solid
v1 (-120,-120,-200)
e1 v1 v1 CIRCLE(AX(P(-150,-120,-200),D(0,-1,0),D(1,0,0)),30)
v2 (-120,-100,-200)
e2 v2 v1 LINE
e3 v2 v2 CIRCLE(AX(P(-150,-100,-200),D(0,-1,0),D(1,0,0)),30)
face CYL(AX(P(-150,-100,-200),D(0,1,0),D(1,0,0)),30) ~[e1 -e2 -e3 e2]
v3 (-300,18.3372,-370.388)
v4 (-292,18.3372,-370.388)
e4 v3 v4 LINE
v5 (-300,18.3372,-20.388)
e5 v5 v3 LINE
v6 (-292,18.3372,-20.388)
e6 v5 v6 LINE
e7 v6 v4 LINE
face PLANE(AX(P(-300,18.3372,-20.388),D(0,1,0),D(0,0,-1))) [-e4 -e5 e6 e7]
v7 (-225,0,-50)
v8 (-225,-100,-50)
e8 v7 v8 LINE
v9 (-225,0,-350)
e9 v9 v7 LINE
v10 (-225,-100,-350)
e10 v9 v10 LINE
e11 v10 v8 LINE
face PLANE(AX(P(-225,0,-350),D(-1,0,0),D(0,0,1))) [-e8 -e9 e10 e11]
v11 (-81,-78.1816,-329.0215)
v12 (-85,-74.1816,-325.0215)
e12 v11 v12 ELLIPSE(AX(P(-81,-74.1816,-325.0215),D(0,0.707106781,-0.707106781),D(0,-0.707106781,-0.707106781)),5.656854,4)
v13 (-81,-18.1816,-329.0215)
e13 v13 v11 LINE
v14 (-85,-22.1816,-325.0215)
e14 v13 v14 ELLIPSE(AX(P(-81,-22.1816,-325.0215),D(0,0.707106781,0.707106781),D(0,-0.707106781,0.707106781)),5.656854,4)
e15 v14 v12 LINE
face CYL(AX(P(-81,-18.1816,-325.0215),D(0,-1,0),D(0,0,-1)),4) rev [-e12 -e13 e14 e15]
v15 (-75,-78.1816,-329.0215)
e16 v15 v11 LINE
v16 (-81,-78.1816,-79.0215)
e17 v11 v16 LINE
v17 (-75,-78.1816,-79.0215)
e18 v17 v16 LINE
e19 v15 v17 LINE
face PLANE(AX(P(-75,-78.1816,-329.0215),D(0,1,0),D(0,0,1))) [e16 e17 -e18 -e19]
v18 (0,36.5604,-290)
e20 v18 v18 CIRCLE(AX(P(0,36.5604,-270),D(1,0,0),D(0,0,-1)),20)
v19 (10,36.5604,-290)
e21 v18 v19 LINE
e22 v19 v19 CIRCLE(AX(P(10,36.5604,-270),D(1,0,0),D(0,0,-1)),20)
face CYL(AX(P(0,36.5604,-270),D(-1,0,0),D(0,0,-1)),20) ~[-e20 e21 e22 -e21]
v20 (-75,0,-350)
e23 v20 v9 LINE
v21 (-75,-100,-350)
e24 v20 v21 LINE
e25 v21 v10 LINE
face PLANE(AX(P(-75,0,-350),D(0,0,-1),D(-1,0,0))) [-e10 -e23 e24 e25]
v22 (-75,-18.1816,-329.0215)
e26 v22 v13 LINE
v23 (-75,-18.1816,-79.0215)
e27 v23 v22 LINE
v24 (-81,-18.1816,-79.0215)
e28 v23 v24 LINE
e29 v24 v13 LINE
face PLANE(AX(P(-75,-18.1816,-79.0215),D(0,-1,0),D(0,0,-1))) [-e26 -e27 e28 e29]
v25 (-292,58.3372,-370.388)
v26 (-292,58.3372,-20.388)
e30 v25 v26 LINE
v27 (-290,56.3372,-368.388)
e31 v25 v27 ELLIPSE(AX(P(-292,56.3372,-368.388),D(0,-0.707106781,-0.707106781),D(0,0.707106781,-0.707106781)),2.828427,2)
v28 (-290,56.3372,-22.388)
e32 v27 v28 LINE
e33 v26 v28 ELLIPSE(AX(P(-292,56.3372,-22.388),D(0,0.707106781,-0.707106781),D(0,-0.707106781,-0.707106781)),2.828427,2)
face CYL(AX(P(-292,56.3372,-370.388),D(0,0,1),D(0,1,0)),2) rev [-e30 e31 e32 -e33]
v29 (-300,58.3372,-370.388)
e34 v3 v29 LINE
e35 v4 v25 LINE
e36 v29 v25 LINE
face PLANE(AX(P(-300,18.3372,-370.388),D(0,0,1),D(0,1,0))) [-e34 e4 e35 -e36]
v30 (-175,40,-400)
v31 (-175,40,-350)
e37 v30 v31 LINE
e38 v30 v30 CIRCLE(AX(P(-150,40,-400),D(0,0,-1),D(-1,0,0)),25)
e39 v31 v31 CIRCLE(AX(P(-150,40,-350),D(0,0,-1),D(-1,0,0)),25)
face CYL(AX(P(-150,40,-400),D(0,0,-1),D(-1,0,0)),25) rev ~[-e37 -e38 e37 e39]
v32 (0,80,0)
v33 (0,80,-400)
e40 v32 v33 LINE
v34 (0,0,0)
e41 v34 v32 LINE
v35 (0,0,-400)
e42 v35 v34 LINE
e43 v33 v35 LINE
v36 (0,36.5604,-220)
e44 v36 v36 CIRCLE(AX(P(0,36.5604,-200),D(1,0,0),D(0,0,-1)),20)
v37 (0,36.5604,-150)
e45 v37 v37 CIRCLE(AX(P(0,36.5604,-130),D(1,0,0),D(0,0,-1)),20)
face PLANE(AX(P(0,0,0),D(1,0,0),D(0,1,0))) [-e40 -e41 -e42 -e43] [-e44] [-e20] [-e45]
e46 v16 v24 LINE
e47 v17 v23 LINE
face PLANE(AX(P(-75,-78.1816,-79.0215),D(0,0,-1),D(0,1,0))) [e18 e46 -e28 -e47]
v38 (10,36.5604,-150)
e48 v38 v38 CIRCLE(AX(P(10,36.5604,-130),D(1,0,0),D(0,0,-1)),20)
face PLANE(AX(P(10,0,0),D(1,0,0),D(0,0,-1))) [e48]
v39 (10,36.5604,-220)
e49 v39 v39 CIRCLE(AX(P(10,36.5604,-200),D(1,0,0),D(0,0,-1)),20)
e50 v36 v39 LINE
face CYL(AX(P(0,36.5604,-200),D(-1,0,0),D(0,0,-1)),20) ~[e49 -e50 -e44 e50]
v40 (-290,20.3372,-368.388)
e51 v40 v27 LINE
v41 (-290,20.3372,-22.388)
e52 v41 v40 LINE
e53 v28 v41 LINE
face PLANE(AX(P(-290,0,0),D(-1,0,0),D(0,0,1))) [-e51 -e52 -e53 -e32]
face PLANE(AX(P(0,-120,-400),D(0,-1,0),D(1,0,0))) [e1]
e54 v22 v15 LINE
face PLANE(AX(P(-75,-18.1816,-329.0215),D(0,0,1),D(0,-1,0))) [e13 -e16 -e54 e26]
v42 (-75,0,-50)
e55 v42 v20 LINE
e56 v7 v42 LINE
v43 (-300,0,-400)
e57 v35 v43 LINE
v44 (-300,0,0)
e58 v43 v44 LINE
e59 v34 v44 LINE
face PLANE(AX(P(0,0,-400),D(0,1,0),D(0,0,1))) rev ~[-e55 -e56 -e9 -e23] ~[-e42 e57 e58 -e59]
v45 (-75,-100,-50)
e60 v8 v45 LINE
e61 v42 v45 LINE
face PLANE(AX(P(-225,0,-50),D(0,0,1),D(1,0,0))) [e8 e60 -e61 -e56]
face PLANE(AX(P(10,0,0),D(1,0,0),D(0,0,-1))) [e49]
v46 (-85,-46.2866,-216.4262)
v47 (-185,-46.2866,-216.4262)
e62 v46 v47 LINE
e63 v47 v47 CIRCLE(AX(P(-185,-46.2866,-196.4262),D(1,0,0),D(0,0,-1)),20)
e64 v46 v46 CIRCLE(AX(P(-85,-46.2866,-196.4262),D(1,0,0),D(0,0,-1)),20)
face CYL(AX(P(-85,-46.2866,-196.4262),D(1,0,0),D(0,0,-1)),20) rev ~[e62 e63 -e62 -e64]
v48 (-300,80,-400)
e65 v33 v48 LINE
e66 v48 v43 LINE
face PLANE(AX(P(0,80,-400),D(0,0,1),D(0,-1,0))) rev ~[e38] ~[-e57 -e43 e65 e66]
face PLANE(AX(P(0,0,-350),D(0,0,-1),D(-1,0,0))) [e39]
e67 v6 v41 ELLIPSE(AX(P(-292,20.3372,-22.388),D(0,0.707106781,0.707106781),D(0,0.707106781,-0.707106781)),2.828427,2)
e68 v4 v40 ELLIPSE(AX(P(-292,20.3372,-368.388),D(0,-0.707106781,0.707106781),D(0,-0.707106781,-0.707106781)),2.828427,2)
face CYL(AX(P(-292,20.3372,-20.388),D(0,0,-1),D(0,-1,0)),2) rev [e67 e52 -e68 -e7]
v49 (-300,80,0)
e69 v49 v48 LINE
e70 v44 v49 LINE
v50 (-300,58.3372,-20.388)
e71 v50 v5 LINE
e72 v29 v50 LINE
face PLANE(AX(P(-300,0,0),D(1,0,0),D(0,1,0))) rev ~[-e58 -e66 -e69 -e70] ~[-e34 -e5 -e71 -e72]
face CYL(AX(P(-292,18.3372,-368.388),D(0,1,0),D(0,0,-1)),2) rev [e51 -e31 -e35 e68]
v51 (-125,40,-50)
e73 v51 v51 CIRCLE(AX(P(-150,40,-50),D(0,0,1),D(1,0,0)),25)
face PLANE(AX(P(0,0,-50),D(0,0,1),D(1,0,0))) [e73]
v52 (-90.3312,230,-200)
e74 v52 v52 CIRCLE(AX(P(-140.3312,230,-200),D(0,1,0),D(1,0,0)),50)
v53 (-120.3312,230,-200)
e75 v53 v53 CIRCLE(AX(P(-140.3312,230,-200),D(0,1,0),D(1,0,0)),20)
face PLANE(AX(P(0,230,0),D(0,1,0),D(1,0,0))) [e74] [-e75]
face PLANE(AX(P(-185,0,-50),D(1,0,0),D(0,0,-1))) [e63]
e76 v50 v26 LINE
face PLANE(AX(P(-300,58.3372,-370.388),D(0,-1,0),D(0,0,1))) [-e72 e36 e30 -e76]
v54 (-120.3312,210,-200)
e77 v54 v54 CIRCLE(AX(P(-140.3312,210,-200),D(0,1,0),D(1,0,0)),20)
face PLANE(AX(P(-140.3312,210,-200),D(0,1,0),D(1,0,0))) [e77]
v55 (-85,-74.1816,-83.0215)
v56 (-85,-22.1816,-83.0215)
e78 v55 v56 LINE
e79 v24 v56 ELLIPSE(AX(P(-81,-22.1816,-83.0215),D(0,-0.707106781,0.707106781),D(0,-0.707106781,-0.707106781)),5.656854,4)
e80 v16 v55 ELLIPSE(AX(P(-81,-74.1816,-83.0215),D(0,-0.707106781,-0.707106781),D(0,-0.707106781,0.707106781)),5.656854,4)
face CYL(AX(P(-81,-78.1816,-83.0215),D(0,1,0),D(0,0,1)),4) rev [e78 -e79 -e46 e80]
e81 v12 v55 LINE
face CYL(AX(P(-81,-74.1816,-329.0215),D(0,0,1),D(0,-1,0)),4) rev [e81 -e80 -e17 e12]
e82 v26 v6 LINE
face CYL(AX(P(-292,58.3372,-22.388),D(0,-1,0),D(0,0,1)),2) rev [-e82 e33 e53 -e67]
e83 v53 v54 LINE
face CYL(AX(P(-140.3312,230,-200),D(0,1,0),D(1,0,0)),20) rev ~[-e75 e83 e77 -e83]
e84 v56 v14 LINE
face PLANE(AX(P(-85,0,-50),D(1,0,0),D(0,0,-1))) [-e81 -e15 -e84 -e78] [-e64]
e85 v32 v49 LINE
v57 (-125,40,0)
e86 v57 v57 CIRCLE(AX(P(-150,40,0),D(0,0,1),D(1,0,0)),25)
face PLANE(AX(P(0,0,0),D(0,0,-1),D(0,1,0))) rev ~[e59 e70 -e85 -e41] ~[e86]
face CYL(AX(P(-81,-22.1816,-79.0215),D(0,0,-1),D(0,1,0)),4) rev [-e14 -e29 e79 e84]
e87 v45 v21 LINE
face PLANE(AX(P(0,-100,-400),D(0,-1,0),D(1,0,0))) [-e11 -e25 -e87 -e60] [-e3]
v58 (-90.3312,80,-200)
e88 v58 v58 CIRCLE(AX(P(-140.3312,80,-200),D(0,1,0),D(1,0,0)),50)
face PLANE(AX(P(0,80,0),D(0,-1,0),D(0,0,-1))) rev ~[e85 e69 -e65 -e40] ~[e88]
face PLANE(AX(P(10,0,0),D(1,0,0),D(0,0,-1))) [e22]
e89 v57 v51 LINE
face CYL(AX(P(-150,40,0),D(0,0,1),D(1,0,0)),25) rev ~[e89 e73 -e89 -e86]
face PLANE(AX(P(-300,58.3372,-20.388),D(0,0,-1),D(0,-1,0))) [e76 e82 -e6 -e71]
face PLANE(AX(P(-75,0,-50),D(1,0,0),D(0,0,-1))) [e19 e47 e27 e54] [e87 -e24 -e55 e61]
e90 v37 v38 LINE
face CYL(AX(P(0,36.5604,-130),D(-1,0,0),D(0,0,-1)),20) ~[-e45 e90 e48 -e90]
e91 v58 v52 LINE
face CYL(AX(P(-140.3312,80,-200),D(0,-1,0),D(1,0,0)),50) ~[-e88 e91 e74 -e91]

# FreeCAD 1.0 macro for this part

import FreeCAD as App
import Part
import Sketcher

V = App.Vector
Q = App.Units.Quantity


def edges_at(feature, points):
    """Names of the edges that pass closest to the given points."""
    edges = feature.Shape.Edges
    near = lambda p: min(range(len(edges)), key=lambda i: edges[i].distToShape(Part.Vertex(*p))[0])
    return sorted({f"Edge{near(p) + 1}" for p in points})


def add_polygon(sketch, points):
    """Adds a closed chain of lines whose ends are joined by coincident constraints."""
    first, n = sketch.GeometryCount, len(points)
    for a, b in zip(points, points[1:] + points[:1]):
        sketch.addGeometry(Part.LineSegment(App.Vector(*a, 0), App.Vector(*b, 0)), False)
    for i in range(n):
        sketch.addConstraint(Sketcher.Constraint("Coincident", first + i, 2, first + (i + 1) % n, 1))

doc = App.newDocument("Part")
body = doc.addObject("PartDesign::Body", "Body")

# Sketch on YZ plane
sketch1 = body.newObject("Sketcher::SketchObject", "Sketch")
sketch1.AttachmentSupport = (doc.getObject("YZ_Plane"), [""])
sketch1.MapMode = "FlatFace"
add_polygon(sketch1, [(80, 0), (0, 0), (0, -400), (80, -400)])  # lines 0-3
sketch1.addConstraint(Sketcher.Constraint("Horizontal", 0))
sketch1.addConstraint(Sketcher.Constraint("Vertical", 1))
sketch1.addConstraint(Sketcher.Constraint("Horizontal", 2))
sketch1.addConstraint(Sketcher.Constraint("Vertical", 3))
sketch1.addConstraint(Sketcher.Constraint("Coincident", 0, 2, -1, 1))
sketch1.addConstraint(Sketcher.Constraint("DistanceX", 0, 2, 0, 1, Q("80 mm")))
sketch1.addConstraint(Sketcher.Constraint("DistanceY", 1, 2, 1, 1, Q("400 mm")))
pad1 = body.newObject("PartDesign::Pad", "Pad")
pad1.Profile = sketch1
pad1.Length = 300
pad1.Reversed = True

# Sketch on YZ plane
sketch2 = body.newObject("Sketcher::SketchObject", "Sketch001")
sketch2.AttachmentSupport = (doc.getObject("YZ_Plane"), [""])
sketch2.MapMode = "FlatFace"
sketch2.addGeometry(Part.Circle(V(37, -130, 0), V(0, 0, 1), 20), False)
sketch2.addConstraint(Sketcher.Constraint("Diameter", 0, Q("40 mm")))
sketch2.addConstraint(Sketcher.Constraint("DistanceY", 0, 3, -1, 1, Q("130 mm")))
sketch2.addConstraint(Sketcher.Constraint("DistanceX", -1, 1, 0, 3, Q("36.5604 mm")))
pad2 = body.newObject("PartDesign::Pad", "Pad001")
pad2.Profile = sketch2
pad2.Length = 10

# Sketch on YZ plane
sketch3 = body.newObject("Sketcher::SketchObject", "Sketch002")
sketch3.AttachmentSupport = (doc.getObject("YZ_Plane"), [""])
sketch3.MapMode = "FlatFace"
sketch3.addGeometry(Part.Circle(V(37, -200, 0), V(0, 0, 1), 20), False)
sketch3.addConstraint(Sketcher.Constraint("Diameter", 0, Q("40 mm")))
sketch3.addConstraint(Sketcher.Constraint("DistanceY", 0, 3, -1, 1, Q("200 mm")))
sketch3.addConstraint(Sketcher.Constraint("DistanceX", -1, 1, 0, 3, Q("36.5604 mm")))
pad3 = body.newObject("PartDesign::Pad", "Pad002")
pad3.Profile = sketch3
pad3.Length = 10

# Sketch on YZ plane
sketch4 = body.newObject("Sketcher::SketchObject", "Sketch003")
sketch4.AttachmentSupport = (doc.getObject("YZ_Plane"), [""])
sketch4.MapMode = "FlatFace"
sketch4.addGeometry(Part.Circle(V(37, -270, 0), V(0, 0, 1), 20), False)
sketch4.addConstraint(Sketcher.Constraint("Diameter", 0, Q("40 mm")))
sketch4.addConstraint(Sketcher.Constraint("DistanceY", 0, 3, -1, 1, Q("270 mm")))
sketch4.addConstraint(Sketcher.Constraint("DistanceX", -1, 1, 0, 3, Q("36.5604 mm")))
pad4 = body.newObject("PartDesign::Pad", "Pad003")
pad4.Profile = sketch4
pad4.Length = 10

# Sketch on XZ plane
sketch5 = body.newObject("Sketcher::SketchObject", "Sketch004")
sketch5.AttachmentSupport = (doc.getObject("XZ_Plane"), [""])
sketch5.MapMode = "FlatFace"
sketch5.AttachmentOffset = App.Placement(V(0, 0, -80), App.Rotation())
sketch5.addGeometry(Part.Circle(V(-140, -200, 0), V(0, 0, 1), 50), False)
sketch5.addConstraint(Sketcher.Constraint("Diameter", 0, Q("100 mm")))
sketch5.addConstraint(Sketcher.Constraint("DistanceY", 0, 3, -1, 1, Q("200 mm")))
sketch5.addConstraint(Sketcher.Constraint("DistanceX", 0, 3, -1, 1, Q("140.3312 mm")))
pad5 = body.newObject("PartDesign::Pad", "Pad004")
pad5.Profile = sketch5
pad5.Length = 150
pad5.Reversed = True

# Sketch on XZ plane
sketch6 = body.newObject("Sketcher::SketchObject", "Sketch005")
sketch6.AttachmentSupport = (doc.getObject("XZ_Plane"), [""])
sketch6.MapMode = "FlatFace"
sketch6.AttachmentOffset = App.Placement(V(0, 0, -230), App.Rotation())
sketch6.addGeometry(Part.Circle(V(-140, -200, 0), V(0, 0, 1), 20), False)
sketch6.addConstraint(Sketcher.Constraint("Diameter", 0, Q("40 mm")))
sketch6.addConstraint(Sketcher.Constraint("DistanceY", 0, 3, -1, 1, Q("200 mm")))
sketch6.addConstraint(Sketcher.Constraint("DistanceX", 0, 3, -1, 1, Q("140.3312 mm")))
pocket1 = body.newObject("PartDesign::Pocket", "Pocket")
pocket1.Profile = sketch6
pocket1.Length = 20
pocket1.Reversed = True

# Sketch on XZ plane
sketch7 = body.newObject("Sketcher::SketchObject", "Sketch006")
sketch7.AttachmentSupport = (doc.getObject("XZ_Plane"), [""])
sketch7.MapMode = "FlatFace"
add_polygon(sketch7, [(-75, -350), (-75, -50), (-225, -50), (-225, -350)])  # lines 0-3
sketch7.addConstraint(Sketcher.Constraint("Vertical", 0))
sketch7.addConstraint(Sketcher.Constraint("Horizontal", 1))
sketch7.addConstraint(Sketcher.Constraint("Vertical", 2))
sketch7.addConstraint(Sketcher.Constraint("Horizontal", 3))
sketch7.addConstraint(Sketcher.Constraint("DistanceX", 1, 2, 1, 1, Q("150 mm")))
sketch7.addConstraint(Sketcher.Constraint("DistanceY", 0, 1, 0, 2, Q("300 mm")))
sketch7.addConstraint(Sketcher.Constraint("DistanceX", 0, 2, -1, 1, Q("75 mm")))
sketch7.addConstraint(Sketcher.Constraint("DistanceY", 0, 2, -1, 1, Q("50 mm")))
pad6 = body.newObject("PartDesign::Pad", "Pad005")
pad6.Profile = sketch7
pad6.Length = 100

# Sketch on XZ plane
sketch8 = body.newObject("Sketcher::SketchObject", "Sketch007")
sketch8.AttachmentSupport = (doc.getObject("XZ_Plane"), [""])
sketch8.MapMode = "FlatFace"
sketch8.AttachmentOffset = App.Placement(V(0, 0, 100), App.Rotation())
sketch8.addGeometry(Part.Circle(V(-150, -200, 0), V(0, 0, 1), 30), False)
sketch8.addConstraint(Sketcher.Constraint("Diameter", 0, Q("60 mm")))
sketch8.addConstraint(Sketcher.Constraint("DistanceX", 0, 3, -1, 1, Q("150 mm")))
sketch8.addConstraint(Sketcher.Constraint("DistanceY", 0, 3, -1, 1, Q("200 mm")))
pad7 = body.newObject("PartDesign::Pad", "Pad006")
pad7.Profile = sketch8
pad7.Length = 20

# Sketch on XY plane
sketch9 = body.newObject("Sketcher::SketchObject", "Sketch008")
sketch9.AttachmentSupport = (doc.getObject("XY_Plane"), [""])
sketch9.MapMode = "FlatFace"
sketch9.addGeometry(Part.Circle(V(-150, 40, 0), V(0, 0, 1), 25), False)
sketch9.addConstraint(Sketcher.Constraint("Diameter", 0, Q("50 mm")))
sketch9.addConstraint(Sketcher.Constraint("DistanceX", 0, 3, -1, 1, Q("150 mm")))
sketch9.addConstraint(Sketcher.Constraint("DistanceY", -1, 1, 0, 3, Q("40 mm")))
pocket2 = body.newObject("PartDesign::Pocket", "Pocket001")
pocket2.Profile = sketch9
pocket2.Length = 50

# Sketch on XY plane
sketch10 = body.newObject("Sketcher::SketchObject", "Sketch009")
sketch10.AttachmentSupport = (doc.getObject("XY_Plane"), [""])
sketch10.MapMode = "FlatFace"
sketch10.AttachmentOffset = App.Placement(V(0, 0, -400), App.Rotation())
sketch10.addGeometry(Part.Circle(V(-150, 40, 0), V(0, 0, 1), 25), False)
sketch10.addConstraint(Sketcher.Constraint("Diameter", 0, Q("50 mm")))
sketch10.addConstraint(Sketcher.Constraint("DistanceX", 0, 3, -1, 1, Q("150 mm")))
sketch10.addConstraint(Sketcher.Constraint("DistanceY", -1, 1, 0, 3, Q("40 mm")))
pocket3 = body.newObject("PartDesign::Pocket", "Pocket002")
pocket3.Profile = sketch10
pocket3.Length = 50
pocket3.Reversed = True

# Sketch on YZ plane
sketch11 = body.newObject("Sketcher::SketchObject", "Sketch010")
sketch11.AttachmentSupport = (doc.getObject("YZ_Plane"), [""])
sketch11.MapMode = "FlatFace"
sketch11.AttachmentOffset = App.Placement(V(0, 0, -75), App.Rotation())
add_polygon(sketch11, [(-18, -329), (-18, -79), (-78, -79), (-78, -329)])  # lines 0-3
sketch11.addConstraint(Sketcher.Constraint("Vertical", 0))
sketch11.addConstraint(Sketcher.Constraint("Horizontal", 1))
sketch11.addConstraint(Sketcher.Constraint("Vertical", 2))
sketch11.addConstraint(Sketcher.Constraint("Horizontal", 3))
sketch11.addConstraint(Sketcher.Constraint("DistanceX", 1, 2, 1, 1, Q("60 mm")))
sketch11.addConstraint(Sketcher.Constraint("DistanceY", 0, 1, 0, 2, Q("250 mm")))
sketch11.addConstraint(Sketcher.Constraint("DistanceX", 0, 2, -1, 1, Q("18.1816 mm")))
sketch11.addConstraint(Sketcher.Constraint("DistanceY", 0, 2, -1, 1, Q("79.0215 mm")))
pocket4 = body.newObject("PartDesign::Pocket", "Pocket003")
pocket4.Profile = sketch11
pocket4.Length = 10
doc.recompute()

fillet = body.newObject("PartDesign::Fillet", "Fillet")
fillet.Base = (pocket4, edges_at(pocket4, [
    (-85, -48.182, -329.022),
    (-85, -18.182, -204.022),
    (-85, -78.182, -204.022),
    (-85, -48.182, -79.022),
]))
fillet.Radius = 4

# Sketch on YZ plane
sketch12 = body.newObject("Sketcher::SketchObject", "Sketch011")
sketch12.AttachmentSupport = (doc.getObject("YZ_Plane"), [""])
sketch12.MapMode = "FlatFace"
sketch12.AttachmentOffset = App.Placement(V(0, 0, -300), App.Rotation())
add_polygon(sketch12, [(18, -370), (18, -20), (58, -20), (58, -370)])  # lines 0-3
sketch12.addConstraint(Sketcher.Constraint("Vertical", 0))
sketch12.addConstraint(Sketcher.Constraint("Horizontal", 1))
sketch12.addConstraint(Sketcher.Constraint("Vertical", 2))
sketch12.addConstraint(Sketcher.Constraint("Horizontal", 3))
sketch12.addConstraint(Sketcher.Constraint("DistanceX", 1, 1, 1, 2, Q("40 mm")))
sketch12.addConstraint(Sketcher.Constraint("DistanceY", 0, 1, 0, 2, Q("350 mm")))
sketch12.addConstraint(Sketcher.Constraint("DistanceY", 0, 2, -1, 1, Q("20.388 mm")))
sketch12.addConstraint(Sketcher.Constraint("DistanceX", -1, 1, 0, 2, Q("18.3372 mm")))
pocket5 = body.newObject("PartDesign::Pocket", "Pocket004")
pocket5.Profile = sketch12
pocket5.Length = 10
pocket5.Reversed = True
doc.recompute()

fillet2 = body.newObject("PartDesign::Fillet", "Fillet001")
fillet2.Base = (pocket5, edges_at(pocket5, [
    (-290, 18.337, -195.388),
    (-290, 38.337, -370.388),
    (-290, 38.337, -20.388),
    (-290, 58.337, -195.388),
]))
fillet2.Radius = 2

# Sketch on YZ plane
sketch13 = body.newObject("Sketcher::SketchObject", "Sketch012")
sketch13.AttachmentSupport = (doc.getObject("YZ_Plane"), [""])
sketch13.MapMode = "FlatFace"
sketch13.AttachmentOffset = App.Placement(V(0, 0, -85), App.Rotation())
sketch13.addGeometry(Part.Circle(V(-46, -196, 0), V(0, 0, 1), 20), False)
sketch13.addConstraint(Sketcher.Constraint("Diameter", 0, Q("40 mm")))
sketch13.addConstraint(Sketcher.Constraint("DistanceX", 0, 3, -1, 1, Q("46.2866 mm")))
sketch13.addConstraint(Sketcher.Constraint("DistanceY", 0, 3, -1, 1, Q("196.4262 mm")))
pocket6 = body.newObject("PartDesign::Pocket", "Pocket005")
pocket6.Profile = sketch13
pocket6.Length = 100

doc.recompute()
